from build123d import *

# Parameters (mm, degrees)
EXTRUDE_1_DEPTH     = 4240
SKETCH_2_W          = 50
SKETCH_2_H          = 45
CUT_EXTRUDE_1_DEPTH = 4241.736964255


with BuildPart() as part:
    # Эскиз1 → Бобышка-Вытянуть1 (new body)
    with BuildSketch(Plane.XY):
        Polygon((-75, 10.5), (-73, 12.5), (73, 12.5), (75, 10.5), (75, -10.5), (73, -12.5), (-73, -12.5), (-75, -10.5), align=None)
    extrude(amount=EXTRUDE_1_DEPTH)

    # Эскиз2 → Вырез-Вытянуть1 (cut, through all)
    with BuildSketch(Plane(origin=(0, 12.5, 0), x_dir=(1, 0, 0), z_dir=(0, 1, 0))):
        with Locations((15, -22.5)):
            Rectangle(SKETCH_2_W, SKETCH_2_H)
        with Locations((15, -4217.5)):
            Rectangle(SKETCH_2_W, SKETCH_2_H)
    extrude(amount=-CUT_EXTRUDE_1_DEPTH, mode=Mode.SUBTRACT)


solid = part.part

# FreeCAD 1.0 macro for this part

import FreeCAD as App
import Part
import Sketcher

V = App.Vector

doc = App.newDocument("Part")
body = doc.addObject("PartDesign::Body", "Body")

sketch1 = body.newObject("Sketcher::SketchObject", "Sketch")
sketch1.AttachmentSupport = (doc.getObject("XY_Plane"), [""])
sketch1.MapMode = "FlatFace"
sketch1.addGeometry([
    Part.LineSegment(V(-73, 12.5, 0), V(-75, 10.5, 0)),
    Part.LineSegment(V(-75, 10.5, 0), V(-75, -10.5, 0)),
    Part.LineSegment(V(-75, -10.5, 0), V(-73, -12.5, 0)),
    Part.LineSegment(V(-73, -12.5, 0), V(73, -12.5, 0)),
    Part.LineSegment(V(73, -12.5, 0), V(75, -10.5, 0)),
    Part.LineSegment(V(75, -10.5, 0), V(75, 10.5, 0)),
    Part.LineSegment(V(75, 10.5, 0), V(73, 12.5, 0)),
    Part.LineSegment(V(73, 12.5, 0), V(-73, 12.5, 0)),
], False)
sketch1.addConstraint([
    Sketcher.Constraint("Coincident", 0, 2, 1, 1),
    Sketcher.Constraint("Coincident", 1, 2, 2, 1),
    Sketcher.Constraint("Coincident", 2, 2, 3, 1),
    Sketcher.Constraint("Coincident", 3, 2, 4, 1),
    Sketcher.Constraint("Coincident", 4, 2, 5, 1),
    Sketcher.Constraint("Coincident", 5, 2, 6, 1),
    Sketcher.Constraint("Coincident", 6, 2, 7, 1),
    Sketcher.Constraint("Coincident", 7, 2, 0, 1),
    Sketcher.Constraint("Vertical", 1),
    Sketcher.Constraint("Horizontal", 3),
    Sketcher.Constraint("Vertical", 5),
    Sketcher.Constraint("Horizontal", 7),
    Sketcher.Constraint("Symmetric", 0, 2, 4, 2, -1, 1),
    Sketcher.Constraint("Symmetric", 2, 2, 6, 2, -1, 1),
    Sketcher.Constraint("Perpendicular", 0, 2),
    Sketcher.Constraint("Perpendicular", 2, 4),
    Sketcher.Constraint("Perpendicular", 4, 6),
    Sketcher.Constraint("Horizontal", 1, 2, 4, 2),
    Sketcher.Constraint("Vertical", 3, 2, 6, 2),
    Sketcher.Constraint("DistanceX", 3, 1, 3, 2, 146.0),
    Sketcher.Constraint("DistanceY", 1, 2, 1, 1, 21.0),
    Sketcher.Constraint("DistanceX", 0, 2, -1, 1, 75.0),
])
pad1 = body.newObject("PartDesign::Pad", "Pad")
pad1.Profile = sketch1
pad1.Length = 4240

sketch2 = body.newObject("Sketcher::SketchObject", "Sketch001")
sketch2.AttachmentSupport = (doc.getObject("XZ_Plane"), [""])
sketch2.MapMode = "FlatFace"
sketch2.AttachmentOffset = App.Placement(V(0, 0, -12.5), App.Rotation())
sketch2.addGeometry([
    Part.LineSegment(V(-10, 0, 0), V(-10, 45, 0)),
    Part.LineSegment(V(-10, 45, 0), V(40, 45, 0)),
    Part.LineSegment(V(40, 45, 0), V(40, 0, 0)),
    Part.LineSegment(V(40, 0, 0), V(-10, 0, 0)),
    Part.LineSegment(V(-10, 4195, 0), V(-10, 4240, 0)),
    Part.LineSegment(V(-10, 4240, 0), V(40, 4240, 0)),
    Part.LineSegment(V(40, 4240, 0), V(40, 4195, 0)),
    Part.LineSegment(V(40, 4195, 0), V(-10, 4195, 0)),
], False)
sketch2.addConstraint([
    Sketcher.Constraint("Coincident", 0, 2, 1, 1),
    Sketcher.Constraint("Coincident", 1, 2, 2, 1),
    Sketcher.Constraint("Coincident", 2, 2, 3, 1),
    Sketcher.Constraint("Coincident", 3, 2, 0, 1),
    Sketcher.Constraint("Coincident", 4, 2, 5, 1),
    Sketcher.Constraint("Coincident", 5, 2, 6, 1),
    Sketcher.Constraint("Coincident", 6, 2, 7, 1),
    Sketcher.Constraint("Coincident", 7, 2, 4, 1),
    Sketcher.Constraint("Vertical", 0),
    Sketcher.Constraint("Horizontal", 1),
    Sketcher.Constraint("Vertical", 2),
    Sketcher.Constraint("Horizontal", 3),
    Sketcher.Constraint("Vertical", 4),
    Sketcher.Constraint("Horizontal", 5),
    Sketcher.Constraint("Vertical", 6),
    Sketcher.Constraint("Horizontal", 7),
    Sketcher.Constraint("PointOnObject", 2, 2, -1),
    Sketcher.Constraint("Vertical", 3, 2, 4, 2),
    Sketcher.Constraint("Vertical", 2, 2, 5, 2),
    Sketcher.Constraint("Equal", 2, 4),
    Sketcher.Constraint("DistanceX", 1, 1, 1, 2, 50.0),
    Sketcher.Constraint("DistanceY", 0, 1, 0, 2, 45.0),
    Sketcher.Constraint("DistanceX", 0, 2, -1, 1, 10.0),
    Sketcher.Constraint("DistanceY", -1, 1, 4, 2, 4240.0),
])
pocket1 = body.newObject("PartDesign::Pocket", "Pocket")
pocket1.Profile = sketch2
pocket1.Type = "ThroughAll"
pocket1.Reversed = True

doc.recompute()
